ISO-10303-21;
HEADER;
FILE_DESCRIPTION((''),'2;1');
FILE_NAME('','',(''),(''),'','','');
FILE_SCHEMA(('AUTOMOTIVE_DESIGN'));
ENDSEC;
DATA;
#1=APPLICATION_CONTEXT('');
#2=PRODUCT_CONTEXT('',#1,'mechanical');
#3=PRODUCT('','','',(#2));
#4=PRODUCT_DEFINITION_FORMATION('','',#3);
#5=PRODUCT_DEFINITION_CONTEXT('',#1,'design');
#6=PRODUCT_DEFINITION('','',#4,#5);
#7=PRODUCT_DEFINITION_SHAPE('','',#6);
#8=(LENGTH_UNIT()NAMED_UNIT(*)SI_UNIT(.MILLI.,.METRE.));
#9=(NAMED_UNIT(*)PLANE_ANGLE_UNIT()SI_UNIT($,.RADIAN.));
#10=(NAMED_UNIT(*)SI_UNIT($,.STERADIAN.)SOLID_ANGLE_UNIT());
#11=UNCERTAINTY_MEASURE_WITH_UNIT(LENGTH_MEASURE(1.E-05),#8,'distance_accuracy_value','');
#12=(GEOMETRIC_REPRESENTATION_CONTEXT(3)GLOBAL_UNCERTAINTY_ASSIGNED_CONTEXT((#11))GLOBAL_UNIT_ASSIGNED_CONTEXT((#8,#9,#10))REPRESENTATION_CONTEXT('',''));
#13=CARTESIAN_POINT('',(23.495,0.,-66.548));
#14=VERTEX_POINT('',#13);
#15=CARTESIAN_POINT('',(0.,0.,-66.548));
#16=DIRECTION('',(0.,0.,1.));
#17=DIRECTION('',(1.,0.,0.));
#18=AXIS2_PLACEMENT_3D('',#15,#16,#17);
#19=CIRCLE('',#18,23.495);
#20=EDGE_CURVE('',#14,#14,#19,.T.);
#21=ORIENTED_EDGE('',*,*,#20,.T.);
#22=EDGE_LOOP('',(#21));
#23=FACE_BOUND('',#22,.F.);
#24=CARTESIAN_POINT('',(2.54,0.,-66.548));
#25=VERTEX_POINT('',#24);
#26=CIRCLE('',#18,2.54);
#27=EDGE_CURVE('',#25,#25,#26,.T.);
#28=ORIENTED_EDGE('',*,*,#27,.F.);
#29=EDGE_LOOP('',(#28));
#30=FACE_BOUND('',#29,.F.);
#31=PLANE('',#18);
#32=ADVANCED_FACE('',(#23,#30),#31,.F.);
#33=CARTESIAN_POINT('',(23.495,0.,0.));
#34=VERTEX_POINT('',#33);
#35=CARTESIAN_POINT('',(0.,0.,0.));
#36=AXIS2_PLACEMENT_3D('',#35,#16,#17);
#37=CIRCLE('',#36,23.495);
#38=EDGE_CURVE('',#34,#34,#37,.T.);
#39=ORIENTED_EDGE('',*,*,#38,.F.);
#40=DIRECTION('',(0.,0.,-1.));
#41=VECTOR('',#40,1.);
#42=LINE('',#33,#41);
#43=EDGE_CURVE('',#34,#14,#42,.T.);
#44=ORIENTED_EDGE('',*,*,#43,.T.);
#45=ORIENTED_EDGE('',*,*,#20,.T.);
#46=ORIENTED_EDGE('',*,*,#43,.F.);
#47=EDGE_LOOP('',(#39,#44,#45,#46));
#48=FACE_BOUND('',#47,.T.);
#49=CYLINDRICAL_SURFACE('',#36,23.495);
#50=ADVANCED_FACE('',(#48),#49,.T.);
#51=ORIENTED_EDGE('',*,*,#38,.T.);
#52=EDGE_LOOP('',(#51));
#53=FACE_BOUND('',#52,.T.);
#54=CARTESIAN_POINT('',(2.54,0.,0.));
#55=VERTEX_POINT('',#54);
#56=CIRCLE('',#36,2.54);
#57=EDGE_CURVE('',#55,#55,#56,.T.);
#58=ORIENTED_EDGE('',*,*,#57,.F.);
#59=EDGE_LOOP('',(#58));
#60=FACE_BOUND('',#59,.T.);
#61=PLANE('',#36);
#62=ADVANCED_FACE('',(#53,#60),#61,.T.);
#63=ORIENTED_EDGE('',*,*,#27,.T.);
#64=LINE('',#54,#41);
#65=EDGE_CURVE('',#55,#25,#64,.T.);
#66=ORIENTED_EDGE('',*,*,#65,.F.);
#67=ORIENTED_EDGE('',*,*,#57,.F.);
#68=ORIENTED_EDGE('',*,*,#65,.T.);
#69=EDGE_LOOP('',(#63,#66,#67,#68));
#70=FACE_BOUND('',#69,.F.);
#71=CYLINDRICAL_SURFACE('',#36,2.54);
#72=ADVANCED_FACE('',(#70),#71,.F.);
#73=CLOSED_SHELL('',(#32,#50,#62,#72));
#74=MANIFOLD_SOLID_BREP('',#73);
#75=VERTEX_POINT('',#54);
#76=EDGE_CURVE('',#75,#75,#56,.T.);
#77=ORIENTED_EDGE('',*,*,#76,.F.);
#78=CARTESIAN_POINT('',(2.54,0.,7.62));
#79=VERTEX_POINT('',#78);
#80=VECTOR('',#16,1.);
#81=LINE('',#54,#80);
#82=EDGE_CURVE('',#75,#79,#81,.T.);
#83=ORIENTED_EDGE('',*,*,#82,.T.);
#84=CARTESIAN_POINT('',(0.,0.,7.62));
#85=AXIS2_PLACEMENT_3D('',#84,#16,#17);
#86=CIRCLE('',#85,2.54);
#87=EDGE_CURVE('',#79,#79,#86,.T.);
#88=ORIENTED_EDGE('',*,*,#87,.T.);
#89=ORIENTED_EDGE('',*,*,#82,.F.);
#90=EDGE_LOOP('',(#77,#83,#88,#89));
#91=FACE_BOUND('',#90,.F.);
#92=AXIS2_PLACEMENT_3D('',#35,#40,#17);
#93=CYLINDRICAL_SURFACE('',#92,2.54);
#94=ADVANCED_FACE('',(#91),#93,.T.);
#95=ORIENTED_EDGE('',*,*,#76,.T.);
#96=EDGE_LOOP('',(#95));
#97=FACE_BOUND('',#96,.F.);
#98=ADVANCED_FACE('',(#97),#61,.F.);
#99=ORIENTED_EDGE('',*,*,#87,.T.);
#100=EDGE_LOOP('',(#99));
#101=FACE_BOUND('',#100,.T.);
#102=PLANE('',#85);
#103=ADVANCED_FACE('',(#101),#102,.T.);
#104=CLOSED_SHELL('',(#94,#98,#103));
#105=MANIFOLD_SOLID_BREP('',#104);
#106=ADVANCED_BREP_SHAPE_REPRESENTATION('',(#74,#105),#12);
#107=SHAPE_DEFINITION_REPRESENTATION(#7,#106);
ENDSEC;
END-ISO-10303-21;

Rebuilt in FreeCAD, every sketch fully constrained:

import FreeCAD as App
import Part
import Sketcher
from FreeCAD import Vector
Q = App.Units.Quantity

doc = App.newDocument("Part")
body = doc.addObject("PartDesign::Body", "Body")
body.AllowCompound = True

# Sketch on XY plane
sketch1 = body.newObject("Sketcher::SketchObject", "Sketch")
sketch1.AttachmentSupport = (doc.getObject("XY_Plane"), [""])
sketch1.MapMode = "FlatFace"
sketch1.addGeometry([
    Part.Circle(Vector(0, 0, 0), Vector(0, 0, 1), 23.5),
    Part.Circle(Vector(0, 0, 0), Vector(0, 0, 1), 2.5),
], False)
sketch1.addConstraint([
    Sketcher.Constraint("Coincident", 0, 3, -1, 1),
    Sketcher.Constraint("Coincident", 1, 3, -1, 1),
    Sketcher.Constraint("Diameter", 1, Q("0.2 in")),
    Sketcher.Constraint("Diameter", 0, Q("1.85 in")),
])
pad1 = body.newObject("PartDesign::Pad", "Pad")
pad1.Profile = sketch1
pad1.Length = Q("2.62 in")
pad1.Reversed = True

# Sketch on XY plane
sketch2 = body.newObject("Sketcher::SketchObject", "Sketch001")
sketch2.AttachmentSupport = (doc.getObject("XY_Plane"), [""])
sketch2.MapMode = "FlatFace"
sketch2.addGeometry(Part.Circle(Vector(0, 0, 0), Vector(0, 0, 1), 2.5), False)
sketch2.addConstraint([
    Sketcher.Constraint("Coincident", 0, 3, -1, 1),
    Sketcher.Constraint("Diameter", 0, Q("0.2 in")),
])
pad2 = body.newObject("PartDesign::Pad", "Pad001")
pad2.Profile = sketch2
pad2.Length = Q("0.3 in")

doc.recompute()
